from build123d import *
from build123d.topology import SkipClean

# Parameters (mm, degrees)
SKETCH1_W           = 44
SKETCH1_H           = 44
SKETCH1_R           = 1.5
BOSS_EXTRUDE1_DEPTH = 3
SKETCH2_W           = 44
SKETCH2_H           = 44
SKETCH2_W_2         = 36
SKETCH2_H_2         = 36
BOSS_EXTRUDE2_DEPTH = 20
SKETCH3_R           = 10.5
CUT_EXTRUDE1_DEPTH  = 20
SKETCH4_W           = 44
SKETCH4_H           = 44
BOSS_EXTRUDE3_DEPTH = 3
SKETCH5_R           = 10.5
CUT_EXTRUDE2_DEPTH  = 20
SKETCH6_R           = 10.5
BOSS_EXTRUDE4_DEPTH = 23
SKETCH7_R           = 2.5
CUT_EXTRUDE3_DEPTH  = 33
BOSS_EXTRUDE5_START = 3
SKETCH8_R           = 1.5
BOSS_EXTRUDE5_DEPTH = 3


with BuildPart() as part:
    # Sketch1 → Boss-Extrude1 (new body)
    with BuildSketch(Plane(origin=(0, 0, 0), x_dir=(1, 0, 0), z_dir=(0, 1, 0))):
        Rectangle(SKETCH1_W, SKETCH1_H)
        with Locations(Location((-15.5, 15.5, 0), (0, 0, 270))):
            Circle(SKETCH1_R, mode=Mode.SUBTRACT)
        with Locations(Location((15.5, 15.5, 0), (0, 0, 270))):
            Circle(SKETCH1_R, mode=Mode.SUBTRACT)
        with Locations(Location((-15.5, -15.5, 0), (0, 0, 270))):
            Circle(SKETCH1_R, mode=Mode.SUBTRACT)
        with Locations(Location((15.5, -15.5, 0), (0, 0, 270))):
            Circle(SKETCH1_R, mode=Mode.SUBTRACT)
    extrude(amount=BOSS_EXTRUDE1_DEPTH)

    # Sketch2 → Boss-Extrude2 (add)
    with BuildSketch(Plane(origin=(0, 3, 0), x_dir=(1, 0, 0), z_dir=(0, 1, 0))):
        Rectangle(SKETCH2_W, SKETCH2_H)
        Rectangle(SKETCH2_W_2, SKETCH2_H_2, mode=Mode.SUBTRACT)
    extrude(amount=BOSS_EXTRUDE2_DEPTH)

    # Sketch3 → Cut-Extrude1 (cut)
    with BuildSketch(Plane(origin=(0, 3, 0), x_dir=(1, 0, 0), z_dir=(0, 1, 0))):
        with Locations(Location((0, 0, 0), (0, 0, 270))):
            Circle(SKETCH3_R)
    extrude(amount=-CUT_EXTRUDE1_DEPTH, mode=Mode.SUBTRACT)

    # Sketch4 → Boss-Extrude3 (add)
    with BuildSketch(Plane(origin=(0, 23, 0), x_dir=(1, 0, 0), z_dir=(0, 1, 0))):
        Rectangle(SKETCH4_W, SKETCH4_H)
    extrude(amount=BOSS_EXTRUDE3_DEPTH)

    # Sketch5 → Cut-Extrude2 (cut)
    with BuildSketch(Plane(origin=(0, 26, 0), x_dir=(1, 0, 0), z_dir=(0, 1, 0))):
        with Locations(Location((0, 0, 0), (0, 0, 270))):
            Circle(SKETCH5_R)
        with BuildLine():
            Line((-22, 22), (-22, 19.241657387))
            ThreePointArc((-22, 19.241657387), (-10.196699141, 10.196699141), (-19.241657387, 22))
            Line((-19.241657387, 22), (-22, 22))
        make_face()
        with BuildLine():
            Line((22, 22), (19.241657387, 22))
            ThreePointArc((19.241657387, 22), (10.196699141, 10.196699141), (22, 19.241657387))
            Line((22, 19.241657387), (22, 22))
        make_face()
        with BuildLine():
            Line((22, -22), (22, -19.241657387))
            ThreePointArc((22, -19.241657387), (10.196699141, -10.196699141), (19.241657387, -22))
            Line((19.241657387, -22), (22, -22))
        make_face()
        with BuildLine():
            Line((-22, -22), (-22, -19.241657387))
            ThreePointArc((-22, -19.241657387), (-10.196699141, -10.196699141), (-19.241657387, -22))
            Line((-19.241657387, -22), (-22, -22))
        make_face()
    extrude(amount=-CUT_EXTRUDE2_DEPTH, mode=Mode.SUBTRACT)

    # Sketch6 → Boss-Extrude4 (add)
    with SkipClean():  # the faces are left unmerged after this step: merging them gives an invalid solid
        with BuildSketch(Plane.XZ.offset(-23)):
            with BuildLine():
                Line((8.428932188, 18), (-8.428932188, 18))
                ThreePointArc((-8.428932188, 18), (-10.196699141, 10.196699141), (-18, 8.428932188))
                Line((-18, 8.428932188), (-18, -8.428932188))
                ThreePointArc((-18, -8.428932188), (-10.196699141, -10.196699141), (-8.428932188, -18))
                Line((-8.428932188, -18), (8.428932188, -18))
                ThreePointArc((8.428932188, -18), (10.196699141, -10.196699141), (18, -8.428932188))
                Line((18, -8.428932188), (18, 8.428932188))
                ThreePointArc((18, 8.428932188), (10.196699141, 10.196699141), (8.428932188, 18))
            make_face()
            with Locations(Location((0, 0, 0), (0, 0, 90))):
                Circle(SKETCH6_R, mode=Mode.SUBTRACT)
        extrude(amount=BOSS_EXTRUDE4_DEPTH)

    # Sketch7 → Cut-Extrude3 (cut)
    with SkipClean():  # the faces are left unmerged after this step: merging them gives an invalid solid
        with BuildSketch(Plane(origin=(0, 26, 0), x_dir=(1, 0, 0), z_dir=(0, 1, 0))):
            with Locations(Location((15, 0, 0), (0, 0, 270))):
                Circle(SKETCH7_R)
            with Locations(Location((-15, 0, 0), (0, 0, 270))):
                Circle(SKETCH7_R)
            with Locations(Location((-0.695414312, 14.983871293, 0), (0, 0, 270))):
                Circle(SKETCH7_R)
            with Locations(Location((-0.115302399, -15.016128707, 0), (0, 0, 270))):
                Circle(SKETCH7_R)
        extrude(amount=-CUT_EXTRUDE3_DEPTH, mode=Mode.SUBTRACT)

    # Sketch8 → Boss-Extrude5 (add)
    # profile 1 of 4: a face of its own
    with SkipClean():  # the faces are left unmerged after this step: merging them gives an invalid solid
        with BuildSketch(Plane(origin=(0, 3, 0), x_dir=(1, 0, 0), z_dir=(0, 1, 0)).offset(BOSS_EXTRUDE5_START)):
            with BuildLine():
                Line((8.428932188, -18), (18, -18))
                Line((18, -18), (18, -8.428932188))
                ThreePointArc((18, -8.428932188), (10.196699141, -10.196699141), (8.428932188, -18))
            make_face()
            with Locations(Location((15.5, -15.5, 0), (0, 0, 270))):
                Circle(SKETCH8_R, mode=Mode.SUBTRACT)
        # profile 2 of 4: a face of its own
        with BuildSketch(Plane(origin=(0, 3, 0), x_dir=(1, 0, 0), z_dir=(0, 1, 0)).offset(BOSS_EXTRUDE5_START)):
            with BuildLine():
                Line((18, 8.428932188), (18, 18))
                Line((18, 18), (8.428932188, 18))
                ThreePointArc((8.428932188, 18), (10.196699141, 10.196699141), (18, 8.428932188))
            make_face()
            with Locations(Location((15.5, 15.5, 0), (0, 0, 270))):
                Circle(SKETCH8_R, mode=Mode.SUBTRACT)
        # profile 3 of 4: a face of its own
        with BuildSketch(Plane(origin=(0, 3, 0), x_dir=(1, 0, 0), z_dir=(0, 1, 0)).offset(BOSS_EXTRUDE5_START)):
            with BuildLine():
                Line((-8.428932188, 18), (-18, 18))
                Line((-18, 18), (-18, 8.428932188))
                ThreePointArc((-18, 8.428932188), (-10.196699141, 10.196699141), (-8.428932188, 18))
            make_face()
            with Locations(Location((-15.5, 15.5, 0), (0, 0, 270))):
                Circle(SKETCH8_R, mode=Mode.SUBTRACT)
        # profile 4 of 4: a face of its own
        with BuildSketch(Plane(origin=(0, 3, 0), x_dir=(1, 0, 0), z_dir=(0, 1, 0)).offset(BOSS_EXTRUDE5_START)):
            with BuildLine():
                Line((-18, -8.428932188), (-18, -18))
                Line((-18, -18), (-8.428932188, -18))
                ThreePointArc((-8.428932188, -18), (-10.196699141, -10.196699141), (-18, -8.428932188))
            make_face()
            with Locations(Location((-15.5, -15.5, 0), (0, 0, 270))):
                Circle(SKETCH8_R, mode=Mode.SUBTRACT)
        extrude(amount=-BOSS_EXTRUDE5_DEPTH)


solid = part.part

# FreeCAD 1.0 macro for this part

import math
import FreeCAD as App
import Part
import Sketcher

doc = App.newDocument("Part")
params = doc.addObject("Spreadsheet::Sheet", "Params")
for row, (alias, value) in enumerate([
    ("sketch1_diameter", "3 mm"),
    ("sketch1_width", "44 mm"),
    ("pad1_length", "3 mm"),
    ("sketch2_width", "44 mm"),
    ("sketch2_width2", "36 mm"),
    ("pad2_length", "20 mm"),
    ("sketch3_diameter", "21 mm"),
    ("pocket1_length", "20 mm"),
    ("sketch4_width", "44 mm"),
    ("pad3_length", "3 mm"),
    ("sketch5_diameter", "21 mm"),
    ("sketch5_radius", "7.5 mm"),
    ("pocket2_length", "20 mm"),
    ("sketch6_diameter", "21 mm"),
    ("sketch6_radius", "7.5 mm"),
    ("pad4_length", "23 mm"),
    ("sketch7_diameter", "5 mm"),
    ("pocket3_length", "33 mm"),
    ("sketch8_diameter", "3 mm"),
    ("sketch8_radius", "7.5 mm"),
    ("pad5_length", "3 mm"),
], start=1):
    params.set(f"A{row}", alias)
    params.set(f"B{row}", "=" + value)
    params.setAlias(f"B{row}", alias)

body = doc.addObject("PartDesign::Body", "Body")

# Sketch on XZ plane
sketch1 = doc.addObject("Sketcher::SketchObject", "Sketch")
body.addObject(sketch1)
sketch1.AttachmentSupport = (doc.XZ_Plane, [""])
sketch1.MapMode = "FlatFace"
sketch1.addGeometry([
    Part.LineSegment(App.Vector(-22, -22, 0), App.Vector(-22, 22, 0)),  # 0
    Part.LineSegment(App.Vector(-22, 22, 0), App.Vector(22, 22, 0)),  # 1
    Part.LineSegment(App.Vector(22, 22, 0), App.Vector(22, -22, 0)),  # 2
    Part.LineSegment(App.Vector(22, -22, 0), App.Vector(-22, -22, 0)),  # 3
    Part.Circle(App.Vector(-15.5, 15.5, 0), App.Vector(0, 0, 1), 1.5),  # 4
    Part.Circle(App.Vector(15.5, 15.5, 0), App.Vector(0, 0, 1), 1.5),  # 5
    Part.Circle(App.Vector(-15.5, -15.5, 0), App.Vector(0, 0, 1), 1.5),  # 6
    Part.Circle(App.Vector(15.5, -15.5, 0), App.Vector(0, 0, 1), 1.5),  # 7
], False)
sketch1.addConstraint([
    Sketcher.Constraint("Coincident", 0, 2, 1, 1),
    Sketcher.Constraint("Coincident", 1, 2, 2, 1),
    Sketcher.Constraint("Coincident", 2, 2, 3, 1),
    Sketcher.Constraint("Coincident", 3, 2, 0, 1),
    Sketcher.Constraint("Vertical", 0),
    Sketcher.Constraint("Horizontal", 1),
    Sketcher.Constraint("Vertical", 2),
    Sketcher.Constraint("Horizontal", 3),
    Sketcher.Constraint("Equal", 4, 5),
    Sketcher.Constraint("Equal", 5, 6),
    Sketcher.Constraint("Equal", 6, 7),
    Sketcher.Constraint("Symmetric", 5, 3, 6, 3, -1, 1),
    Sketcher.Constraint("Symmetric", 4, 3, 7, 3, -1, 1),
    Sketcher.Constraint("Symmetric", 0, 2, 2, 2, -1, 1),
    Sketcher.Constraint("Symmetric", 4, 3, 5, 3, -2),
    Sketcher.Constraint("Equal", 3, 0),
    Sketcher.Constraint("Diameter", 4, 3.0),
    Sketcher.Constraint("DistanceX", 1, 1, 1, 2, 44.0),
    Sketcher.Constraint("DistanceX", 4, 3, 5, 3, 31.0),
    Sketcher.Constraint("DistanceY", 6, 3, 4, 3, 31.0),
])
sketch1.setExpression("Constraints[16]", "Params.sketch1_diameter")
sketch1.setExpression("Constraints[17]", "Params.sketch1_width")
pad1 = doc.addObject("PartDesign::Pad", "Pad")
body.addObject(pad1)
pad1.Profile = sketch1
pad1.setExpression("Length", "Params.pad1_length")
pad1.Reversed = True

# Sketch on XZ plane
sketch2 = doc.addObject("Sketcher::SketchObject", "Sketch001")
body.addObject(sketch2)
sketch2.AttachmentSupport = (doc.XZ_Plane, [""])
sketch2.MapMode = "FlatFace"
sketch2.AttachmentOffset = App.Placement(App.Vector(0, 0, -3), App.Rotation())
sketch2.addGeometry([
    Part.LineSegment(App.Vector(-22, -22, 0), App.Vector(-22, 22, 0)),  # 0
    Part.LineSegment(App.Vector(-22, 22, 0), App.Vector(22, 22, 0)),  # 1
    Part.LineSegment(App.Vector(22, 22, 0), App.Vector(22, -22, 0)),  # 2
    Part.LineSegment(App.Vector(22, -22, 0), App.Vector(-22, -22, 0)),  # 3
    Part.LineSegment(App.Vector(18, 18, 0), App.Vector(-18, 18, 0)),  # 4
    Part.LineSegment(App.Vector(-18, 18, 0), App.Vector(-18, -18, 0)),  # 5
    Part.LineSegment(App.Vector(-18, -18, 0), App.Vector(18, -18, 0)),  # 6
    Part.LineSegment(App.Vector(18, -18, 0), App.Vector(18, 18, 0)),  # 7
], False)
sketch2.addConstraint([
    Sketcher.Constraint("Coincident", 0, 2, 1, 1),
    Sketcher.Constraint("Coincident", 1, 2, 2, 1),
    Sketcher.Constraint("Coincident", 2, 2, 3, 1),
    Sketcher.Constraint("Coincident", 3, 2, 0, 1),
    Sketcher.Constraint("Coincident", 4, 2, 5, 1),
    Sketcher.Constraint("Coincident", 5, 2, 6, 1),
    Sketcher.Constraint("Coincident", 6, 2, 7, 1),
    Sketcher.Constraint("Coincident", 7, 2, 4, 1),
    Sketcher.Constraint("Vertical", 0),
    Sketcher.Constraint("Horizontal", 1),
    Sketcher.Constraint("Vertical", 2),
    Sketcher.Constraint("Horizontal", 3),
    Sketcher.Constraint("Horizontal", 4),
    Sketcher.Constraint("Vertical", 5),
    Sketcher.Constraint("Horizontal", 6),
    Sketcher.Constraint("Vertical", 7),
    Sketcher.Constraint("Symmetric", 0, 2, 2, 2, -1, 1),
    Sketcher.Constraint("Symmetric", 4, 2, 6, 2, -1, 1),
    Sketcher.Constraint("Equal", 3, 0),
    Sketcher.Constraint("Equal", 6, 5),
    Sketcher.Constraint("DistanceX", 1, 1, 1, 2, 44.0),
    Sketcher.Constraint("DistanceX", 4, 2, 4, 1, 36.0),
])
sketch2.setExpression("Constraints[20]", "Params.sketch2_width")
sketch2.setExpression("Constraints[21]", "Params.sketch2_width2")
pad2 = doc.addObject("PartDesign::Pad", "Pad001")
body.addObject(pad2)
pad2.Profile = sketch2
pad2.setExpression("Length", "Params.pad2_length")
pad2.Reversed = True

# Sketch on XZ plane
sketch3 = doc.addObject("Sketcher::SketchObject", "Sketch002")
body.addObject(sketch3)
sketch3.AttachmentSupport = (doc.XZ_Plane, [""])
sketch3.MapMode = "FlatFace"
sketch3.AttachmentOffset = App.Placement(App.Vector(0, 0, -3), App.Rotation())
sketch3.addGeometry(Part.Circle(App.Vector(0, 0, 0), App.Vector(0, 0, 1), 10), False)
sketch3.addConstraint([
    Sketcher.Constraint("Coincident", 0, 3, -1, 1),
    Sketcher.Constraint("Diameter", 0, 21.0),
])
sketch3.setExpression("Constraints[1]", "Params.sketch3_diameter")
pocket1 = doc.addObject("PartDesign::Pocket", "Pocket")
body.addObject(pocket1)
pocket1.Profile = sketch3
pocket1.setExpression("Length", "Params.pocket1_length")
pocket1.Reversed = True

# Sketch on XZ plane
sketch4 = doc.addObject("Sketcher::SketchObject", "Sketch003")
body.addObject(sketch4)
sketch4.AttachmentSupport = (doc.XZ_Plane, [""])
sketch4.MapMode = "FlatFace"
sketch4.AttachmentOffset = App.Placement(App.Vector(0, 0, -23), App.Rotation())
sketch4.addGeometry([
    Part.LineSegment(App.Vector(-22, -22, 0), App.Vector(-22, 22, 0)),
    Part.LineSegment(App.Vector(-22, 22, 0), App.Vector(22, 22, 0)),
    Part.LineSegment(App.Vector(22, 22, 0), App.Vector(22, -22, 0)),
    Part.LineSegment(App.Vector(22, -22, 0), App.Vector(-22, -22, 0)),
], False)
sketch4.addConstraint([
    Sketcher.Constraint("Coincident", 0, 2, 1, 1),
    Sketcher.Constraint("Coincident", 1, 2, 2, 1),
    Sketcher.Constraint("Coincident", 2, 2, 3, 1),
    Sketcher.Constraint("Coincident", 3, 2, 0, 1),
    Sketcher.Constraint("Vertical", 0),
    Sketcher.Constraint("Horizontal", 1),
    Sketcher.Constraint("Vertical", 2),
    Sketcher.Constraint("Horizontal", 3),
    Sketcher.Constraint("Symmetric", 0, 2, 2, 2, -1, 1),
    Sketcher.Constraint("Equal", 3, 0),
    Sketcher.Constraint("DistanceX", 1, 1, 1, 2, 44.0),
])
sketch4.setExpression("Constraints[10]", "Params.sketch4_width")
pad3 = doc.addObject("PartDesign::Pad", "Pad002")
body.addObject(pad3)
pad3.Profile = sketch4
pad3.setExpression("Length", "Params.pad3_length")
pad3.Reversed = True

# Sketch on XZ plane
sketch5 = doc.addObject("Sketcher::SketchObject", "Sketch004")
body.addObject(sketch5)
sketch5.AttachmentSupport = (doc.XZ_Plane, [""])
sketch5.MapMode = "FlatFace"
sketch5.AttachmentOffset = App.Placement(App.Vector(0, 0, -26), App.Rotation())
sketch5.addGeometry([
    Part.Circle(App.Vector(0, 0, 0), App.Vector(0, 0, 1), 10.5),  # 0
    Part.LineSegment(App.Vector(-22, -22, 0), App.Vector(-22, -19.2, 0)),  # 1
    Part.ArcOfCircle(Part.Circle(App.Vector(-15.5, -15.5, 0), App.Vector(0, 0, 1), 7.5), math.radians(-120), math.radians(210)),  # 2
    Part.LineSegment(App.Vector(-19.2, -22, 0), App.Vector(-22, -22, 0)),  # 3
    Part.LineSegment(App.Vector(22, -22, 0), App.Vector(19.2, -22, 0)),  # 4
    Part.ArcOfCircle(Part.Circle(App.Vector(15.5, -15.5, 0), App.Vector(0, 0, 1), 7.5), math.radians(-30), math.radians(300)),  # 5
    Part.LineSegment(App.Vector(22, -19.2, 0), App.Vector(22, -22, 0)),  # 6
    Part.LineSegment(App.Vector(22, 22, 0), App.Vector(22, 19.2, 0)),  # 7
    Part.ArcOfCircle(Part.Circle(App.Vector(15.5, 15.5, 0), App.Vector(0, 0, 1), 7.5), math.radians(60), math.radians(390)),  # 8
    Part.LineSegment(App.Vector(19.2, 22, 0), App.Vector(22, 22, 0)),  # 9
    Part.LineSegment(App.Vector(-22, 19.2, 0), App.Vector(-22, 22, 0)),  # 10
    Part.LineSegment(App.Vector(-22, 22, 0), App.Vector(-19.2, 22, 0)),  # 11
    Part.ArcOfCircle(Part.Circle(App.Vector(-15.5, 15.5, 0), App.Vector(0, 0, 1), 7.5), math.radians(150), math.radians(480)),  # 12
], False)
sketch5.addConstraint([
    Sketcher.Constraint("Coincident", 1, 2, 2, 2),
    Sketcher.Constraint("Coincident", 2, 1, 3, 1),
    Sketcher.Constraint("Coincident", 3, 2, 1, 1),
    Sketcher.Constraint("Coincident", 4, 2, 5, 2),
    Sketcher.Constraint("Coincident", 5, 1, 6, 1),
    Sketcher.Constraint("Coincident", 6, 2, 4, 1),
    Sketcher.Constraint("Coincident", 7, 2, 8, 2),
    Sketcher.Constraint("Coincident", 8, 1, 9, 1),
    Sketcher.Constraint("Coincident", 9, 2, 7, 1),
    Sketcher.Constraint("Coincident", 10, 2, 11, 1),
    Sketcher.Constraint("Coincident", 11, 2, 12, 2),
    Sketcher.Constraint("Coincident", 12, 1, 10, 1),
    Sketcher.Constraint("Vertical", 1),
    Sketcher.Constraint("Horizontal", 3),
    Sketcher.Constraint("Horizontal", 4),
    Sketcher.Constraint("Vertical", 6),
    Sketcher.Constraint("Vertical", 7),
    Sketcher.Constraint("Horizontal", 9),
    Sketcher.Constraint("Vertical", 10),
    Sketcher.Constraint("Horizontal", 11),
    Sketcher.Constraint("Coincident", 0, 3, -1, 1),
    Sketcher.Constraint("Equal", 2, 5),
    Sketcher.Constraint("Equal", 5, 8),
    Sketcher.Constraint("Equal", 8, 12),
    Sketcher.Constraint("Symmetric", 2, 3, 8, 3, -1, 1),
    Sketcher.Constraint("Symmetric", 5, 3, 12, 3, -1, 1),
    Sketcher.Constraint("Symmetric", 3, 2, 9, 2, -1, 1),
    Sketcher.Constraint("Symmetric", 6, 2, 10, 2, -1, 1),
    Sketcher.Constraint("Symmetric", 2, 3, 5, 3, -2),
    Sketcher.Constraint("Symmetric", 3, 2, 6, 2, -2),
    Sketcher.Constraint("Equal", 11, 1),
    Sketcher.Constraint("Diameter", 0, 21.0),
    Sketcher.Constraint("Radius", 2, 7.5),
    Sketcher.Constraint("DistanceX", 1, 2, -1, 1, 22.0),
    Sketcher.Constraint("DistanceY", 2, 1, -1, 1, 22.0),
    Sketcher.Constraint("DistanceX", 2, 3, 5, 3, 31.0),
])
sketch5.setExpression("Constraints[31]", "Params.sketch5_diameter")
sketch5.setExpression("Constraints[32]", "Params.sketch5_radius")
pocket2 = doc.addObject("PartDesign::Pocket", "Pocket001")
body.addObject(pocket2)
pocket2.Profile = sketch5
pocket2.setExpression("Length", "Params.pocket2_length")
pocket2.Reversed = True

# Sketch on XZ plane
sketch6 = doc.addObject("Sketcher::SketchObject", "Sketch005")
body.addObject(sketch6)
sketch6.AttachmentSupport = (doc.XZ_Plane, [""])
sketch6.MapMode = "FlatFace"
sketch6.AttachmentOffset = App.Placement(App.Vector(0, 0, -23), App.Rotation())
sketch6.addGeometry([
    Part.LineSegment(App.Vector(8, 18, 0), App.Vector(-8, 18, 0)),  # 0
    Part.ArcOfCircle(Part.Circle(App.Vector(-16, 16, 0), App.Vector(0, 0, 1), 8), math.radians(-109), math.radians(19)),  # 1
    Part.LineSegment(App.Vector(-18, 8, 0), App.Vector(-18, -8, 0)),  # 2
    Part.ArcOfCircle(Part.Circle(App.Vector(-16, -16, 0), App.Vector(0, 0, 1), 8), math.radians(-19), math.radians(109)),  # 3
    Part.LineSegment(App.Vector(-8, -18, 0), App.Vector(8, -18, 0)),  # 4
    Part.ArcOfCircle(Part.Circle(App.Vector(16, -16, 0), App.Vector(0, 0, 1), 8), math.radians(71), math.radians(199)),  # 5
    Part.LineSegment(App.Vector(18, -8, 0), App.Vector(18, 8, 0)),  # 6
    Part.ArcOfCircle(Part.Circle(App.Vector(16, 16, 0), App.Vector(0, 0, 1), 8), math.radians(161), math.radians(289)),  # 7
    Part.Circle(App.Vector(0, 0, 0), App.Vector(0, 0, 1), 10),  # 8
], False)
sketch6.addConstraint([
    Sketcher.Constraint("Coincident", 0, 2, 1, 2),
    Sketcher.Constraint("Coincident", 1, 1, 2, 1),
    Sketcher.Constraint("Coincident", 2, 2, 3, 2),
    Sketcher.Constraint("Coincident", 3, 1, 4, 1),
    Sketcher.Constraint("Coincident", 4, 2, 5, 2),
    Sketcher.Constraint("Coincident", 5, 1, 6, 1),
    Sketcher.Constraint("Coincident", 6, 2, 7, 2),
    Sketcher.Constraint("Coincident", 7, 1, 0, 1),
    Sketcher.Constraint("Horizontal", 0),
    Sketcher.Constraint("Vertical", 2),
    Sketcher.Constraint("Horizontal", 4),
    Sketcher.Constraint("Vertical", 6),
    Sketcher.Constraint("Coincident", 8, 3, -1, 1),
    Sketcher.Constraint("Equal", 1, 3),
    Sketcher.Constraint("Equal", 3, 5),
    Sketcher.Constraint("Equal", 5, 7),
    Sketcher.Constraint("Symmetric", 1, 3, 5, 3, -1, 1),
    Sketcher.Constraint("Symmetric", 3, 3, 7, 3, -1, 1),
    Sketcher.Constraint("Symmetric", 3, 3, 5, 3, -2),
    Sketcher.Constraint("Horizontal", 2, 2, 5, 1),
    Sketcher.Constraint("Vertical", 0, 2, 3, 1),
    Sketcher.Constraint("Equal", 4, 2),
    Sketcher.Constraint("Diameter", 8, 21.0),
    Sketcher.Constraint("Radius", 1, 7.5),
    Sketcher.Constraint("DistanceY", -1, 1, 0, 2, 18.0),
    Sketcher.Constraint("DistanceX", 1, 1, -1, 1, 18.0),
    Sketcher.Constraint("DistanceY", 3, 3, 1, 3, 31.0),
])
sketch6.setExpression("Constraints[22]", "Params.sketch6_diameter")
sketch6.setExpression("Constraints[23]", "Params.sketch6_radius")
pad4 = doc.addObject("PartDesign::Pad", "Pad003")
body.addObject(pad4)
pad4.Profile = sketch6
pad4.setExpression("Length", "Params.pad4_length")

# Sketch on XZ plane
sketch7 = doc.addObject("Sketcher::SketchObject", "Sketch006")
body.addObject(sketch7)
sketch7.AttachmentSupport = (doc.XZ_Plane, [""])
sketch7.MapMode = "FlatFace"
sketch7.AttachmentOffset = App.Placement(App.Vector(0, 0, -26), App.Rotation())
sketch7.addGeometry([
    Part.Circle(App.Vector(15, 0, 0), App.Vector(0, 0, 1), 2.5),
    Part.Circle(App.Vector(-15, 0, 0), App.Vector(0, 0, 1), 2.5),
    Part.Circle(App.Vector(-0.7, -15, 0), App.Vector(0, 0, 1), 2.5),
    Part.Circle(App.Vector(-0.1, 15, 0), App.Vector(0, 0, 1), 2.5),
], False)
sketch7.addConstraint([
    Sketcher.Constraint("Equal", 0, 1),
    Sketcher.Constraint("Equal", 1, 2),
    Sketcher.Constraint("Equal", 2, 3),
    Sketcher.Constraint("Symmetric", 0, 3, 1, 3, -1, 1),
    Sketcher.Constraint("PointOnObject", 0, 3, -1),
    Sketcher.Constraint("Diameter", 0, 5.0),
    Sketcher.Constraint("DistanceX", -1, 1, 0, 3, 15.0),
    Sketcher.Constraint("DistanceY", 2, 3, 3, 3, 30.0),
    Sketcher.Constraint("DistanceY", 2, 3, -1, 1, 14.983871),
    Sketcher.Constraint("DistanceX", 2, 3, 3, 3, 0.580112),
    Sketcher.Constraint("DistanceX", 2, 3, -1, 1, 0.695414),
])
sketch7.setExpression("Constraints[5]", "Params.sketch7_diameter")
pocket3 = doc.addObject("PartDesign::Pocket", "Pocket002")
body.addObject(pocket3)
pocket3.Profile = sketch7
pocket3.setExpression("Length", "Params.pocket3_length")
pocket3.Reversed = True

# Sketch on XZ plane
sketch8 = doc.addObject("Sketcher::SketchObject", "Sketch007")
body.addObject(sketch8)
sketch8.AttachmentSupport = (doc.XZ_Plane, [""])
sketch8.MapMode = "FlatFace"
sketch8.AttachmentOffset = App.Placement(App.Vector(0, 0, -6), App.Rotation())
sketch8.addGeometry([
    Part.LineSegment(App.Vector(8.4, 18, 0), App.Vector(18, 18, 0)),  # 0
    Part.LineSegment(App.Vector(18, 18, 0), App.Vector(18, 8.4, 0)),  # 1
    Part.ArcOfCircle(Part.Circle(App.Vector(15.5, 15.5, 0), App.Vector(0, 0, 1), 7.5), math.radians(161), math.radians(289)),  # 2
    Part.Circle(App.Vector(15.5, 15.5, 0), App.Vector(0, 0, 1), 1.5),  # 3
    Part.LineSegment(App.Vector(18, -8.4, 0), App.Vector(18, -18, 0)),  # 4
    Part.LineSegment(App.Vector(18, -18, 0), App.Vector(8.4, -18, 0)),  # 5
    Part.ArcOfCircle(Part.Circle(App.Vector(15.5, -15.5, 0), App.Vector(0, 0, 1), 7.5), math.radians(71), math.radians(199)),  # 6
    Part.Circle(App.Vector(15.5, -15.5, 0), App.Vector(0, 0, 1), 1.5),  # 7
    Part.LineSegment(App.Vector(-8.4, -18, 0), App.Vector(-18, -18, 0)),  # 8
    Part.LineSegment(App.Vector(-18, -18, 0), App.Vector(-18, -8.4, 0)),  # 9
    Part.ArcOfCircle(Part.Circle(App.Vector(-15.5, -15.5, 0), App.Vector(0, 0, 1), 7.5), math.radians(-19), math.radians(109)),  # 10
    Part.Circle(App.Vector(-15.5, -15.5, 0), App.Vector(0, 0, 1), 1.5),  # 11
    Part.LineSegment(App.Vector(-18, 8.4, 0), App.Vector(-18, 18, 0)),  # 12
    Part.LineSegment(App.Vector(-18, 18, 0), App.Vector(-8.4, 18, 0)),  # 13
    Part.ArcOfCircle(Part.Circle(App.Vector(-15.5, 15.5, 0), App.Vector(0, 0, 1), 7.5), math.radians(-109), math.radians(19)),  # 14
    Part.Circle(App.Vector(-15.5, 15.5, 0), App.Vector(0, 0, 1), 1.5),  # 15
], False)
sketch8.addConstraint([
    Sketcher.Constraint("Coincident", 0, 2, 1, 1),
    Sketcher.Constraint("Coincident", 1, 2, 2, 2),
    Sketcher.Constraint("Coincident", 2, 1, 0, 1),
    Sketcher.Constraint("Coincident", 4, 2, 5, 1),
    Sketcher.Constraint("Coincident", 5, 2, 6, 2),
    Sketcher.Constraint("Coincident", 6, 1, 4, 1),
    Sketcher.Constraint("Coincident", 8, 2, 9, 1),
    Sketcher.Constraint("Coincident", 9, 2, 10, 2),
    Sketcher.Constraint("Coincident", 10, 1, 8, 1),
    Sketcher.Constraint("Coincident", 12, 2, 13, 1),
    Sketcher.Constraint("Coincident", 13, 2, 14, 2),
    Sketcher.Constraint("Coincident", 14, 1, 12, 1),
    Sketcher.Constraint("Horizontal", 0),
    Sketcher.Constraint("Vertical", 1),
    Sketcher.Constraint("Vertical", 4),
    Sketcher.Constraint("Horizontal", 5),
    Sketcher.Constraint("Horizontal", 8),
    Sketcher.Constraint("Vertical", 9),
    Sketcher.Constraint("Vertical", 12),
    Sketcher.Constraint("Horizontal", 13),
    Sketcher.Constraint("Coincident", 3, 3, 2, 3),
    Sketcher.Constraint("Coincident", 7, 3, 6, 3),
    Sketcher.Constraint("Coincident", 11, 3, 10, 3),
    Sketcher.Constraint("Coincident", 15, 3, 14, 3),
    Sketcher.Constraint("Equal", 2, 6),
    Sketcher.Constraint("Equal", 3, 7),
    Sketcher.Constraint("Equal", 6, 10),
    Sketcher.Constraint("Equal", 7, 11),
    Sketcher.Constraint("Equal", 10, 14),
    Sketcher.Constraint("Equal", 11, 15),
    Sketcher.Constraint("Symmetric", 2, 3, 10, 3, -1, 1),
    Sketcher.Constraint("Symmetric", 6, 3, 14, 3, -1, 1),
    Sketcher.Constraint("Symmetric", 0, 2, 8, 2, -1, 1),
    Sketcher.Constraint("Symmetric", 4, 2, 12, 2, -1, 1),
    Sketcher.Constraint("Symmetric", 6, 3, 10, 3, -2),
    Sketcher.Constraint("Symmetric", 4, 2, 8, 2, -2),
    Sketcher.Constraint("Equal", 13, 1),
    Sketcher.Constraint("Diameter", 3, 3.0),
    Sketcher.Constraint("Radius", 2, 7.5),
    Sketcher.Constraint("DistanceX", -1, 1, 0, 2, 18.0),
    Sketcher.Constraint("DistanceY", -1, 1, 0, 2, 18.0),
    Sketcher.Constraint("DistanceY", 6, 3, 2, 3, 31.0),
])
sketch8.setExpression("Constraints[37]", "Params.sketch8_diameter")
sketch8.setExpression("Constraints[38]", "Params.sketch8_radius")
pad5 = doc.addObject("PartDesign::Pad", "Pad004")
body.addObject(pad5)
pad5.Profile = sketch8
pad5.setExpression("Length", "Params.pad5_length")

doc.recompute()
